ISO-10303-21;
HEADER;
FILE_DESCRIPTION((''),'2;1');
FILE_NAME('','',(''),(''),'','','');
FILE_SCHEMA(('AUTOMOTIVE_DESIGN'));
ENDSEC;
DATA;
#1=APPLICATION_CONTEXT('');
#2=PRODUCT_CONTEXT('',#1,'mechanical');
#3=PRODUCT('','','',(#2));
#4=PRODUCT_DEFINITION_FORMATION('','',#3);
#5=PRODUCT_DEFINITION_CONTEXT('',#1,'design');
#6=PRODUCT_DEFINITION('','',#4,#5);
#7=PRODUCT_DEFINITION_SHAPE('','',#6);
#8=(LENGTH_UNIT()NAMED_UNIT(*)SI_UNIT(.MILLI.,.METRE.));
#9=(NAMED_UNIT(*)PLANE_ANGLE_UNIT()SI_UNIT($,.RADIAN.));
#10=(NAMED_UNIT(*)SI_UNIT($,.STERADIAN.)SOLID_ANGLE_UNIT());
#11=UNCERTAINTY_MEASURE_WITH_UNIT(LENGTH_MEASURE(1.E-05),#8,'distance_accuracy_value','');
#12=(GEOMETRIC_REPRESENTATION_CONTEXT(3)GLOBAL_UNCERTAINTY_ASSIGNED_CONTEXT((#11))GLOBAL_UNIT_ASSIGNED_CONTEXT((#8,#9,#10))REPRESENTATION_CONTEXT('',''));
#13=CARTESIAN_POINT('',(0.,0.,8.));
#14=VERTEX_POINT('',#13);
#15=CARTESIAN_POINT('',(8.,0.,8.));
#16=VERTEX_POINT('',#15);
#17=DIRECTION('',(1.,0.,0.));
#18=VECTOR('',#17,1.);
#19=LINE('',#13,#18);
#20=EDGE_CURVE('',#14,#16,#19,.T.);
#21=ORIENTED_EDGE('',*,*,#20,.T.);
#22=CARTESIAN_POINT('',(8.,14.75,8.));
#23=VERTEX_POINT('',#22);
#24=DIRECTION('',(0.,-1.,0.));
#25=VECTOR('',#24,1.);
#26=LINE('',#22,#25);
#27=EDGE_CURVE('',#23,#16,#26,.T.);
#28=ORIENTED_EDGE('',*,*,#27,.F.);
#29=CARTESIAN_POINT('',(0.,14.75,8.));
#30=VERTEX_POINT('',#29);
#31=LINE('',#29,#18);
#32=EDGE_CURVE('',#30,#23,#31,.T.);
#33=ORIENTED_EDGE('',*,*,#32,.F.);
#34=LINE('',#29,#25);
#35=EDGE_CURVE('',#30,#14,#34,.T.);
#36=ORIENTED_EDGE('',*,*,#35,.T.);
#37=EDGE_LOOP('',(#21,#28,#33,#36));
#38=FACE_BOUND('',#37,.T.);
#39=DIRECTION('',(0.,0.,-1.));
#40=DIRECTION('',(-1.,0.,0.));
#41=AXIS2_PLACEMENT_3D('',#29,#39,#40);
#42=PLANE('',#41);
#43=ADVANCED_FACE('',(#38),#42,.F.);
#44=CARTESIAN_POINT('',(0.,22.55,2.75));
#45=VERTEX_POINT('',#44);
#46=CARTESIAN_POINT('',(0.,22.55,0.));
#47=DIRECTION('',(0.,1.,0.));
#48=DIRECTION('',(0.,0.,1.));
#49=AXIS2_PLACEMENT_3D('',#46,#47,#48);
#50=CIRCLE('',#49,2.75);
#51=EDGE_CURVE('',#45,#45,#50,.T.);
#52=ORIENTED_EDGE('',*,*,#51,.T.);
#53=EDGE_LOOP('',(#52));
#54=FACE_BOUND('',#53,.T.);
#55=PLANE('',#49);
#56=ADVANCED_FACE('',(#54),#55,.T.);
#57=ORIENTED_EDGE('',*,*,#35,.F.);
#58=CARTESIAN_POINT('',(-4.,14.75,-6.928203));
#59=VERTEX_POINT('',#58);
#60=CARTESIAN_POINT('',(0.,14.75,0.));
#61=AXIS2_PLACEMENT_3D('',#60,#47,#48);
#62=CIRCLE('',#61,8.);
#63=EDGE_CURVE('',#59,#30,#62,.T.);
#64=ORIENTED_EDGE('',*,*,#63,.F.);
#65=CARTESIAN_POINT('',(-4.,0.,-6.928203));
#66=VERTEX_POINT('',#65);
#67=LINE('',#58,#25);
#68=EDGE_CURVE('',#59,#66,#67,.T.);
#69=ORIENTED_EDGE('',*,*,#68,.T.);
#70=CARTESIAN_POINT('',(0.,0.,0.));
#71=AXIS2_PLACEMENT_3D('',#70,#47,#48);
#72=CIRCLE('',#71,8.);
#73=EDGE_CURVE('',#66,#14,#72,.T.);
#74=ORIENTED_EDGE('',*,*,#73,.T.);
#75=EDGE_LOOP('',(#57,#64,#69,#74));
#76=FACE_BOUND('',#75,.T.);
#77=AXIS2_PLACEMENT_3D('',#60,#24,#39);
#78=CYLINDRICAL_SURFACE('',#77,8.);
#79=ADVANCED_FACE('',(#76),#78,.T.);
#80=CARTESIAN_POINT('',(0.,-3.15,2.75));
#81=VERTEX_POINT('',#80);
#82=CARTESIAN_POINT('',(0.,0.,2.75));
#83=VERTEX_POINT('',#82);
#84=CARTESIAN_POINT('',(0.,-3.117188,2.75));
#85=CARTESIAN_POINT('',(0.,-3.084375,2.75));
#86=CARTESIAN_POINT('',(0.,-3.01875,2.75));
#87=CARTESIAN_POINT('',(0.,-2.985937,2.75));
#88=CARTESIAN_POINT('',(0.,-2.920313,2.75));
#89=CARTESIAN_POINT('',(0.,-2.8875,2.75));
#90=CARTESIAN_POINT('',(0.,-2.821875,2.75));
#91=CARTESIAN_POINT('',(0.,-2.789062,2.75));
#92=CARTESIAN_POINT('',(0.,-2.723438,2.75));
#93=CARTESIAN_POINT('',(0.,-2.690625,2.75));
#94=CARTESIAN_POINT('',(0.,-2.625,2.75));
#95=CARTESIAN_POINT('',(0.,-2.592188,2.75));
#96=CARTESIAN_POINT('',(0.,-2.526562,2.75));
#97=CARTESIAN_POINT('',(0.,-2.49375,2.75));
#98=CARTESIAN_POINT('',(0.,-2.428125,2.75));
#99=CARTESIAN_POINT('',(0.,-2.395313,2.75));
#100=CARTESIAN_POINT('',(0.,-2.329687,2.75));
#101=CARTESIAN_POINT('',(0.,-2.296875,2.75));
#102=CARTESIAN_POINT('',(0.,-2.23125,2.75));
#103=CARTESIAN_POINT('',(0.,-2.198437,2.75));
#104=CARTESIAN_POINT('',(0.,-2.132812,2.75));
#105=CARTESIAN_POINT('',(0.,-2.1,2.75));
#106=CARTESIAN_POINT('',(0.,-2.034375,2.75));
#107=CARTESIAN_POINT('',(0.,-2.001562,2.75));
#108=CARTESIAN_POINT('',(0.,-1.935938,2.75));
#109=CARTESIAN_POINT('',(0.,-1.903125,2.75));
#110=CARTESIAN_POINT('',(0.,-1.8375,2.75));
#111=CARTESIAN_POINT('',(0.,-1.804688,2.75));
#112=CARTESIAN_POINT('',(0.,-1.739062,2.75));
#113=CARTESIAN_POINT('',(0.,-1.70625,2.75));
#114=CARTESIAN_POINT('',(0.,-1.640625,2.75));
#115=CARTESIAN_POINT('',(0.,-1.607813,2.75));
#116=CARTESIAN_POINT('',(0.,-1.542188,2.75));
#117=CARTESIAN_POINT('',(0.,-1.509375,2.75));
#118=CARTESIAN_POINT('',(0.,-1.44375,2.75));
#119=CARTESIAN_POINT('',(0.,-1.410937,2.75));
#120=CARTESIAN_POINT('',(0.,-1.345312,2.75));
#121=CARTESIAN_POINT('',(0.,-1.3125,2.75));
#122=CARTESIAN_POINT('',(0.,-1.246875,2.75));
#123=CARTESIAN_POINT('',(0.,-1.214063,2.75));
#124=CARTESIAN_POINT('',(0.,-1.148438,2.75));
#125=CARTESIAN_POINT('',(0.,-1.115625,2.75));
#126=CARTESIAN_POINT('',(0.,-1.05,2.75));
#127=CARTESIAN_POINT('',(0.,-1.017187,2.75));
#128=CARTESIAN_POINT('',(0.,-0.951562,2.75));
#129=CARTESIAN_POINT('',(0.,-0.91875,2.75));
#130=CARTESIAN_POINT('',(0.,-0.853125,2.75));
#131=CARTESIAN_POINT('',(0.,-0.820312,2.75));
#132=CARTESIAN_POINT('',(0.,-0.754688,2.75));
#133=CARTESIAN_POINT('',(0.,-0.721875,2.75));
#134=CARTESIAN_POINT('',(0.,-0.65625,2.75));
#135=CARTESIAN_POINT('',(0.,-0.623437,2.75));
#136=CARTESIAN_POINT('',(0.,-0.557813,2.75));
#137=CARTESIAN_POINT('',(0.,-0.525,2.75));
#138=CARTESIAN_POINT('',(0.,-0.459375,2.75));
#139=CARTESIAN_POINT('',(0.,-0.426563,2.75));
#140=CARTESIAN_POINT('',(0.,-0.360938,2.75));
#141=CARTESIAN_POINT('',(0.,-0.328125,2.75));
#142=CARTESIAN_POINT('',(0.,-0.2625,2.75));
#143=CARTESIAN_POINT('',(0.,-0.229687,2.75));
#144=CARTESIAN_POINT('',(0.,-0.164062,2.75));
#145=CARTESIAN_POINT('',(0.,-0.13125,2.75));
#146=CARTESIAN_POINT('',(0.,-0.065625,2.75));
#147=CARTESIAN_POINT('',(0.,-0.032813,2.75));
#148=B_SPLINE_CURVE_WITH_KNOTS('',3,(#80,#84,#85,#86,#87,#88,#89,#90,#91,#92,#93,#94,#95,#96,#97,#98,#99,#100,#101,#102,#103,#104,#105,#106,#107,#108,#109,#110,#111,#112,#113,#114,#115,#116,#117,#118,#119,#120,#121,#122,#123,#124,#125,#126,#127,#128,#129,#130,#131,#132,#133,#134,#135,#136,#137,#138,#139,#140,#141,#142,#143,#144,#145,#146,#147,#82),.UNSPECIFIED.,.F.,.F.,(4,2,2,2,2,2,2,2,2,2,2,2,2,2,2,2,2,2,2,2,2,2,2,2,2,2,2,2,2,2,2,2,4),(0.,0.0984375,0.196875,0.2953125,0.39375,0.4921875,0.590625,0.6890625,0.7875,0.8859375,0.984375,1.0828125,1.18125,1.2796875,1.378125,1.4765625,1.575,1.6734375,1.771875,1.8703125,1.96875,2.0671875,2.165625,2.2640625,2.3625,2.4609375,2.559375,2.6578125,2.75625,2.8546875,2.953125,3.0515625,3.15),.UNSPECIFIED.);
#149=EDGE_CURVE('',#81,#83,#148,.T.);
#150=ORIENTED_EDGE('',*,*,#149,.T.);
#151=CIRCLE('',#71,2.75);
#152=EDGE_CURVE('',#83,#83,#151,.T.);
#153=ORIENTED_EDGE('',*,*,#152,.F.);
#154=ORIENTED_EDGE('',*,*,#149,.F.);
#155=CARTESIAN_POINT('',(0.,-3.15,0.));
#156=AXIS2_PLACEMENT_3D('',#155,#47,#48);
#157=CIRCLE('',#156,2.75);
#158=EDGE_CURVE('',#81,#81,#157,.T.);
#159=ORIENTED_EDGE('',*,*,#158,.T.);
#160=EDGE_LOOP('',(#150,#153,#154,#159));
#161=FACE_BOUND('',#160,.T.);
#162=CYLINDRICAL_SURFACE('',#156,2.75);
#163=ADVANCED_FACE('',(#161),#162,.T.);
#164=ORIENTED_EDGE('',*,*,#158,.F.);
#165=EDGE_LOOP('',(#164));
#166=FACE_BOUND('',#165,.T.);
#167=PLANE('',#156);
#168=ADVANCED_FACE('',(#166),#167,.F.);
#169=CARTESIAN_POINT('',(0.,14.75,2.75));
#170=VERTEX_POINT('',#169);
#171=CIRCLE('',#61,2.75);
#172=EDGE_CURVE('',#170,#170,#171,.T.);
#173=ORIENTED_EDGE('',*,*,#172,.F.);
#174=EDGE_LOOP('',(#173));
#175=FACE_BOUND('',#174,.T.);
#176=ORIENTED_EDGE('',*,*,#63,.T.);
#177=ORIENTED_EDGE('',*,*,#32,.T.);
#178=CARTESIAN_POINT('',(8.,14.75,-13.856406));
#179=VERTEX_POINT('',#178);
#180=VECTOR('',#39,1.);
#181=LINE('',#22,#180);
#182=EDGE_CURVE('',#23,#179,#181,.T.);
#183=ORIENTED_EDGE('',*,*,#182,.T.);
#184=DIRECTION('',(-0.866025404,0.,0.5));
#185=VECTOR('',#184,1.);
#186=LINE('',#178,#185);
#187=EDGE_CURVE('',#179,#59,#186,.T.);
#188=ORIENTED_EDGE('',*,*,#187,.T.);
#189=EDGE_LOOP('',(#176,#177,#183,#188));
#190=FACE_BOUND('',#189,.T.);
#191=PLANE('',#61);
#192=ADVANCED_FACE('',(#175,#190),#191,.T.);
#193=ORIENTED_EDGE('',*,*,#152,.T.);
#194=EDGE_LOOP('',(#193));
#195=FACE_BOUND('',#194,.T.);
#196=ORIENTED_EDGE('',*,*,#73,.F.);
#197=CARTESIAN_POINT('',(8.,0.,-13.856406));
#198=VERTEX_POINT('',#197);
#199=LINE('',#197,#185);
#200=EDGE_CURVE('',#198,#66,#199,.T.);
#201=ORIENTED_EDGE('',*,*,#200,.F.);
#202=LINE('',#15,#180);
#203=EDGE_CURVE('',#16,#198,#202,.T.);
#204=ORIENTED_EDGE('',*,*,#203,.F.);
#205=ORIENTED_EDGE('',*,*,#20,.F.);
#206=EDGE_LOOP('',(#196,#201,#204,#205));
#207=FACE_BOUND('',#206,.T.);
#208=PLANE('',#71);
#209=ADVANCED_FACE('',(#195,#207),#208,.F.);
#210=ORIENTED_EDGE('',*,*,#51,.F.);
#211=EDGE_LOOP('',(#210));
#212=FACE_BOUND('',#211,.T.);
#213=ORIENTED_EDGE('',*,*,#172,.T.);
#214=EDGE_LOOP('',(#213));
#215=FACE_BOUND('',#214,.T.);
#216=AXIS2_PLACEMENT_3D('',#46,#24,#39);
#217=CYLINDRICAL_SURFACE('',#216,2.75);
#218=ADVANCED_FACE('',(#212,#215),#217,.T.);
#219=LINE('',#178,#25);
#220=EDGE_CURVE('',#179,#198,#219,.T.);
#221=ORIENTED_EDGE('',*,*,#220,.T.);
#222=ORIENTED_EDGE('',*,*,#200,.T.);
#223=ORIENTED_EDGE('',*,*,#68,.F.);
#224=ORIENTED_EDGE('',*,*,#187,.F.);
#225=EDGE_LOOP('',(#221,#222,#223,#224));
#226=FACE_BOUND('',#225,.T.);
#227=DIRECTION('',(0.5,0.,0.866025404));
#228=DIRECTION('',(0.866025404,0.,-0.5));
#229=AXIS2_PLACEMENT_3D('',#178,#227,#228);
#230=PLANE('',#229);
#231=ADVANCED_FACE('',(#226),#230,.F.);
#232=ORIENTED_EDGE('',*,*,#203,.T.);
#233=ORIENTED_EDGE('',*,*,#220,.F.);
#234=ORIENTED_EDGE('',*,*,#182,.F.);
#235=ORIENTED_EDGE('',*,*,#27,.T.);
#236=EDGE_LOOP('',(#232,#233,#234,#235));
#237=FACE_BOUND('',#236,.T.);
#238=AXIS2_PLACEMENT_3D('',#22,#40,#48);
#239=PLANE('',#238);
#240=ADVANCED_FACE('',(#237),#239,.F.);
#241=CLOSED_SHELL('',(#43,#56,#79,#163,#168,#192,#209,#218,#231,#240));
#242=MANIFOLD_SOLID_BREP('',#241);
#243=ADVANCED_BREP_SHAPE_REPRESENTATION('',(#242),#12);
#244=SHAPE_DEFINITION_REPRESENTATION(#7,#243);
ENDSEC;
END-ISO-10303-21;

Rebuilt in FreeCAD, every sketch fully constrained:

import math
import FreeCAD as App
import Part
import Sketcher

V = App.Vector
Q = App.Units.Quantity

doc = App.newDocument("Part")
body = doc.addObject("PartDesign::Body", "Body")

sketch1 = doc.addObject("Sketcher::SketchObject", "Sketch")
body.addObject(sketch1)
sketch1.AttachmentSupport = (doc.XZ_Plane, [""])
sketch1.MapMode = "FlatFace"
sketch1.addGeometry(Part.LineSegment(V(0, 8, 0), V(8, 8, 0)), False)
sketch1.addGeometry(Part.LineSegment(V(8, 8, 0), V(8, -13.856406, 0)), False)
sketch1.addGeometry(Part.LineSegment(V(8, -13.856406, 0), V(-4, -6.928203, 0)), False)
sketch1.addGeometry(Part.ArcOfCircle(Part.Circle(V(0, 0, 0), V(0, 0, 1), 8), math.radians(90), math.radians(240)), False)
sketch1.addConstraint(Sketcher.Constraint("Coincident", 0, 2, 1, 1))
sketch1.addConstraint(Sketcher.Constraint("Coincident", 1, 2, 2, 1))
sketch1.addConstraint(Sketcher.Constraint("Tangent", 2, 2, 3, 2))
sketch1.addConstraint(Sketcher.Constraint("Tangent", 3, 1, 0, 1))
sketch1.addConstraint(Sketcher.Constraint("Horizontal", 0))
sketch1.addConstraint(Sketcher.Constraint("Vertical", 1))
sketch1.addConstraint(Sketcher.Constraint("Coincident", 3, 3, -1, 1))
sketch1.addConstraint(Sketcher.Constraint("Radius", 3, Q("8 mm")))
sketch1.addConstraint(Sketcher.Constraint("DistanceX", 0, 1, 0, 2, Q("8 mm")))
sketch1.addConstraint(Sketcher.Constraint("Angle", 2, Q("150 deg")))
pad1 = doc.addObject("PartDesign::Pad", "Pad")
body.addObject(pad1)
pad1.Profile = sketch1
pad1.Length = 14.75
pad1.Reversed = True

sketch2 = doc.addObject("Sketcher::SketchObject", "Sketch001")
body.addObject(sketch2)
sketch2.AttachmentSupport = (doc.XZ_Plane, [""])
sketch2.MapMode = "FlatFace"
sketch2.AttachmentOffset = App.Placement(V(0, 0, -14.75), App.Rotation())
sketch2.addGeometry(Part.Circle(V(0, 0, 0), V(0, 0, 1), 2.75), False)
sketch2.addConstraint(Sketcher.Constraint("Coincident", 0, 3, -1, 1))
sketch2.addConstraint(Sketcher.Constraint("Diameter", 0, Q("5.5 mm")))
pad2 = doc.addObject("PartDesign::Pad", "Pad001")
body.addObject(pad2)
pad2.Profile = sketch2
pad2.Length = 7.8
pad2.Reversed = True

sketch3 = doc.addObject("Sketcher::SketchObject", "Sketch002")
body.addObject(sketch3)
sketch3.AttachmentSupport = (doc.XZ_Plane, [""])
sketch3.MapMode = "FlatFace"
sketch3.AttachmentOffset = App.Placement(V(0, 0, 3.15), App.Rotation())
sketch3.addGeometry(Part.Circle(V(0, 0, 0), V(0, 0, 1), 2.75), False)
sketch3.addConstraint(Sketcher.Constraint("Coincident", 0, 3, -1, 1))
sketch3.addConstraint(Sketcher.Constraint("Diameter", 0, Q("5.5 mm")))
pad3 = doc.addObject("PartDesign::Pad", "Pad002")
body.addObject(pad3)
pad3.Profile = sketch3
pad3.Length = 17.9
pad3.Reversed = True

doc.recompute()
